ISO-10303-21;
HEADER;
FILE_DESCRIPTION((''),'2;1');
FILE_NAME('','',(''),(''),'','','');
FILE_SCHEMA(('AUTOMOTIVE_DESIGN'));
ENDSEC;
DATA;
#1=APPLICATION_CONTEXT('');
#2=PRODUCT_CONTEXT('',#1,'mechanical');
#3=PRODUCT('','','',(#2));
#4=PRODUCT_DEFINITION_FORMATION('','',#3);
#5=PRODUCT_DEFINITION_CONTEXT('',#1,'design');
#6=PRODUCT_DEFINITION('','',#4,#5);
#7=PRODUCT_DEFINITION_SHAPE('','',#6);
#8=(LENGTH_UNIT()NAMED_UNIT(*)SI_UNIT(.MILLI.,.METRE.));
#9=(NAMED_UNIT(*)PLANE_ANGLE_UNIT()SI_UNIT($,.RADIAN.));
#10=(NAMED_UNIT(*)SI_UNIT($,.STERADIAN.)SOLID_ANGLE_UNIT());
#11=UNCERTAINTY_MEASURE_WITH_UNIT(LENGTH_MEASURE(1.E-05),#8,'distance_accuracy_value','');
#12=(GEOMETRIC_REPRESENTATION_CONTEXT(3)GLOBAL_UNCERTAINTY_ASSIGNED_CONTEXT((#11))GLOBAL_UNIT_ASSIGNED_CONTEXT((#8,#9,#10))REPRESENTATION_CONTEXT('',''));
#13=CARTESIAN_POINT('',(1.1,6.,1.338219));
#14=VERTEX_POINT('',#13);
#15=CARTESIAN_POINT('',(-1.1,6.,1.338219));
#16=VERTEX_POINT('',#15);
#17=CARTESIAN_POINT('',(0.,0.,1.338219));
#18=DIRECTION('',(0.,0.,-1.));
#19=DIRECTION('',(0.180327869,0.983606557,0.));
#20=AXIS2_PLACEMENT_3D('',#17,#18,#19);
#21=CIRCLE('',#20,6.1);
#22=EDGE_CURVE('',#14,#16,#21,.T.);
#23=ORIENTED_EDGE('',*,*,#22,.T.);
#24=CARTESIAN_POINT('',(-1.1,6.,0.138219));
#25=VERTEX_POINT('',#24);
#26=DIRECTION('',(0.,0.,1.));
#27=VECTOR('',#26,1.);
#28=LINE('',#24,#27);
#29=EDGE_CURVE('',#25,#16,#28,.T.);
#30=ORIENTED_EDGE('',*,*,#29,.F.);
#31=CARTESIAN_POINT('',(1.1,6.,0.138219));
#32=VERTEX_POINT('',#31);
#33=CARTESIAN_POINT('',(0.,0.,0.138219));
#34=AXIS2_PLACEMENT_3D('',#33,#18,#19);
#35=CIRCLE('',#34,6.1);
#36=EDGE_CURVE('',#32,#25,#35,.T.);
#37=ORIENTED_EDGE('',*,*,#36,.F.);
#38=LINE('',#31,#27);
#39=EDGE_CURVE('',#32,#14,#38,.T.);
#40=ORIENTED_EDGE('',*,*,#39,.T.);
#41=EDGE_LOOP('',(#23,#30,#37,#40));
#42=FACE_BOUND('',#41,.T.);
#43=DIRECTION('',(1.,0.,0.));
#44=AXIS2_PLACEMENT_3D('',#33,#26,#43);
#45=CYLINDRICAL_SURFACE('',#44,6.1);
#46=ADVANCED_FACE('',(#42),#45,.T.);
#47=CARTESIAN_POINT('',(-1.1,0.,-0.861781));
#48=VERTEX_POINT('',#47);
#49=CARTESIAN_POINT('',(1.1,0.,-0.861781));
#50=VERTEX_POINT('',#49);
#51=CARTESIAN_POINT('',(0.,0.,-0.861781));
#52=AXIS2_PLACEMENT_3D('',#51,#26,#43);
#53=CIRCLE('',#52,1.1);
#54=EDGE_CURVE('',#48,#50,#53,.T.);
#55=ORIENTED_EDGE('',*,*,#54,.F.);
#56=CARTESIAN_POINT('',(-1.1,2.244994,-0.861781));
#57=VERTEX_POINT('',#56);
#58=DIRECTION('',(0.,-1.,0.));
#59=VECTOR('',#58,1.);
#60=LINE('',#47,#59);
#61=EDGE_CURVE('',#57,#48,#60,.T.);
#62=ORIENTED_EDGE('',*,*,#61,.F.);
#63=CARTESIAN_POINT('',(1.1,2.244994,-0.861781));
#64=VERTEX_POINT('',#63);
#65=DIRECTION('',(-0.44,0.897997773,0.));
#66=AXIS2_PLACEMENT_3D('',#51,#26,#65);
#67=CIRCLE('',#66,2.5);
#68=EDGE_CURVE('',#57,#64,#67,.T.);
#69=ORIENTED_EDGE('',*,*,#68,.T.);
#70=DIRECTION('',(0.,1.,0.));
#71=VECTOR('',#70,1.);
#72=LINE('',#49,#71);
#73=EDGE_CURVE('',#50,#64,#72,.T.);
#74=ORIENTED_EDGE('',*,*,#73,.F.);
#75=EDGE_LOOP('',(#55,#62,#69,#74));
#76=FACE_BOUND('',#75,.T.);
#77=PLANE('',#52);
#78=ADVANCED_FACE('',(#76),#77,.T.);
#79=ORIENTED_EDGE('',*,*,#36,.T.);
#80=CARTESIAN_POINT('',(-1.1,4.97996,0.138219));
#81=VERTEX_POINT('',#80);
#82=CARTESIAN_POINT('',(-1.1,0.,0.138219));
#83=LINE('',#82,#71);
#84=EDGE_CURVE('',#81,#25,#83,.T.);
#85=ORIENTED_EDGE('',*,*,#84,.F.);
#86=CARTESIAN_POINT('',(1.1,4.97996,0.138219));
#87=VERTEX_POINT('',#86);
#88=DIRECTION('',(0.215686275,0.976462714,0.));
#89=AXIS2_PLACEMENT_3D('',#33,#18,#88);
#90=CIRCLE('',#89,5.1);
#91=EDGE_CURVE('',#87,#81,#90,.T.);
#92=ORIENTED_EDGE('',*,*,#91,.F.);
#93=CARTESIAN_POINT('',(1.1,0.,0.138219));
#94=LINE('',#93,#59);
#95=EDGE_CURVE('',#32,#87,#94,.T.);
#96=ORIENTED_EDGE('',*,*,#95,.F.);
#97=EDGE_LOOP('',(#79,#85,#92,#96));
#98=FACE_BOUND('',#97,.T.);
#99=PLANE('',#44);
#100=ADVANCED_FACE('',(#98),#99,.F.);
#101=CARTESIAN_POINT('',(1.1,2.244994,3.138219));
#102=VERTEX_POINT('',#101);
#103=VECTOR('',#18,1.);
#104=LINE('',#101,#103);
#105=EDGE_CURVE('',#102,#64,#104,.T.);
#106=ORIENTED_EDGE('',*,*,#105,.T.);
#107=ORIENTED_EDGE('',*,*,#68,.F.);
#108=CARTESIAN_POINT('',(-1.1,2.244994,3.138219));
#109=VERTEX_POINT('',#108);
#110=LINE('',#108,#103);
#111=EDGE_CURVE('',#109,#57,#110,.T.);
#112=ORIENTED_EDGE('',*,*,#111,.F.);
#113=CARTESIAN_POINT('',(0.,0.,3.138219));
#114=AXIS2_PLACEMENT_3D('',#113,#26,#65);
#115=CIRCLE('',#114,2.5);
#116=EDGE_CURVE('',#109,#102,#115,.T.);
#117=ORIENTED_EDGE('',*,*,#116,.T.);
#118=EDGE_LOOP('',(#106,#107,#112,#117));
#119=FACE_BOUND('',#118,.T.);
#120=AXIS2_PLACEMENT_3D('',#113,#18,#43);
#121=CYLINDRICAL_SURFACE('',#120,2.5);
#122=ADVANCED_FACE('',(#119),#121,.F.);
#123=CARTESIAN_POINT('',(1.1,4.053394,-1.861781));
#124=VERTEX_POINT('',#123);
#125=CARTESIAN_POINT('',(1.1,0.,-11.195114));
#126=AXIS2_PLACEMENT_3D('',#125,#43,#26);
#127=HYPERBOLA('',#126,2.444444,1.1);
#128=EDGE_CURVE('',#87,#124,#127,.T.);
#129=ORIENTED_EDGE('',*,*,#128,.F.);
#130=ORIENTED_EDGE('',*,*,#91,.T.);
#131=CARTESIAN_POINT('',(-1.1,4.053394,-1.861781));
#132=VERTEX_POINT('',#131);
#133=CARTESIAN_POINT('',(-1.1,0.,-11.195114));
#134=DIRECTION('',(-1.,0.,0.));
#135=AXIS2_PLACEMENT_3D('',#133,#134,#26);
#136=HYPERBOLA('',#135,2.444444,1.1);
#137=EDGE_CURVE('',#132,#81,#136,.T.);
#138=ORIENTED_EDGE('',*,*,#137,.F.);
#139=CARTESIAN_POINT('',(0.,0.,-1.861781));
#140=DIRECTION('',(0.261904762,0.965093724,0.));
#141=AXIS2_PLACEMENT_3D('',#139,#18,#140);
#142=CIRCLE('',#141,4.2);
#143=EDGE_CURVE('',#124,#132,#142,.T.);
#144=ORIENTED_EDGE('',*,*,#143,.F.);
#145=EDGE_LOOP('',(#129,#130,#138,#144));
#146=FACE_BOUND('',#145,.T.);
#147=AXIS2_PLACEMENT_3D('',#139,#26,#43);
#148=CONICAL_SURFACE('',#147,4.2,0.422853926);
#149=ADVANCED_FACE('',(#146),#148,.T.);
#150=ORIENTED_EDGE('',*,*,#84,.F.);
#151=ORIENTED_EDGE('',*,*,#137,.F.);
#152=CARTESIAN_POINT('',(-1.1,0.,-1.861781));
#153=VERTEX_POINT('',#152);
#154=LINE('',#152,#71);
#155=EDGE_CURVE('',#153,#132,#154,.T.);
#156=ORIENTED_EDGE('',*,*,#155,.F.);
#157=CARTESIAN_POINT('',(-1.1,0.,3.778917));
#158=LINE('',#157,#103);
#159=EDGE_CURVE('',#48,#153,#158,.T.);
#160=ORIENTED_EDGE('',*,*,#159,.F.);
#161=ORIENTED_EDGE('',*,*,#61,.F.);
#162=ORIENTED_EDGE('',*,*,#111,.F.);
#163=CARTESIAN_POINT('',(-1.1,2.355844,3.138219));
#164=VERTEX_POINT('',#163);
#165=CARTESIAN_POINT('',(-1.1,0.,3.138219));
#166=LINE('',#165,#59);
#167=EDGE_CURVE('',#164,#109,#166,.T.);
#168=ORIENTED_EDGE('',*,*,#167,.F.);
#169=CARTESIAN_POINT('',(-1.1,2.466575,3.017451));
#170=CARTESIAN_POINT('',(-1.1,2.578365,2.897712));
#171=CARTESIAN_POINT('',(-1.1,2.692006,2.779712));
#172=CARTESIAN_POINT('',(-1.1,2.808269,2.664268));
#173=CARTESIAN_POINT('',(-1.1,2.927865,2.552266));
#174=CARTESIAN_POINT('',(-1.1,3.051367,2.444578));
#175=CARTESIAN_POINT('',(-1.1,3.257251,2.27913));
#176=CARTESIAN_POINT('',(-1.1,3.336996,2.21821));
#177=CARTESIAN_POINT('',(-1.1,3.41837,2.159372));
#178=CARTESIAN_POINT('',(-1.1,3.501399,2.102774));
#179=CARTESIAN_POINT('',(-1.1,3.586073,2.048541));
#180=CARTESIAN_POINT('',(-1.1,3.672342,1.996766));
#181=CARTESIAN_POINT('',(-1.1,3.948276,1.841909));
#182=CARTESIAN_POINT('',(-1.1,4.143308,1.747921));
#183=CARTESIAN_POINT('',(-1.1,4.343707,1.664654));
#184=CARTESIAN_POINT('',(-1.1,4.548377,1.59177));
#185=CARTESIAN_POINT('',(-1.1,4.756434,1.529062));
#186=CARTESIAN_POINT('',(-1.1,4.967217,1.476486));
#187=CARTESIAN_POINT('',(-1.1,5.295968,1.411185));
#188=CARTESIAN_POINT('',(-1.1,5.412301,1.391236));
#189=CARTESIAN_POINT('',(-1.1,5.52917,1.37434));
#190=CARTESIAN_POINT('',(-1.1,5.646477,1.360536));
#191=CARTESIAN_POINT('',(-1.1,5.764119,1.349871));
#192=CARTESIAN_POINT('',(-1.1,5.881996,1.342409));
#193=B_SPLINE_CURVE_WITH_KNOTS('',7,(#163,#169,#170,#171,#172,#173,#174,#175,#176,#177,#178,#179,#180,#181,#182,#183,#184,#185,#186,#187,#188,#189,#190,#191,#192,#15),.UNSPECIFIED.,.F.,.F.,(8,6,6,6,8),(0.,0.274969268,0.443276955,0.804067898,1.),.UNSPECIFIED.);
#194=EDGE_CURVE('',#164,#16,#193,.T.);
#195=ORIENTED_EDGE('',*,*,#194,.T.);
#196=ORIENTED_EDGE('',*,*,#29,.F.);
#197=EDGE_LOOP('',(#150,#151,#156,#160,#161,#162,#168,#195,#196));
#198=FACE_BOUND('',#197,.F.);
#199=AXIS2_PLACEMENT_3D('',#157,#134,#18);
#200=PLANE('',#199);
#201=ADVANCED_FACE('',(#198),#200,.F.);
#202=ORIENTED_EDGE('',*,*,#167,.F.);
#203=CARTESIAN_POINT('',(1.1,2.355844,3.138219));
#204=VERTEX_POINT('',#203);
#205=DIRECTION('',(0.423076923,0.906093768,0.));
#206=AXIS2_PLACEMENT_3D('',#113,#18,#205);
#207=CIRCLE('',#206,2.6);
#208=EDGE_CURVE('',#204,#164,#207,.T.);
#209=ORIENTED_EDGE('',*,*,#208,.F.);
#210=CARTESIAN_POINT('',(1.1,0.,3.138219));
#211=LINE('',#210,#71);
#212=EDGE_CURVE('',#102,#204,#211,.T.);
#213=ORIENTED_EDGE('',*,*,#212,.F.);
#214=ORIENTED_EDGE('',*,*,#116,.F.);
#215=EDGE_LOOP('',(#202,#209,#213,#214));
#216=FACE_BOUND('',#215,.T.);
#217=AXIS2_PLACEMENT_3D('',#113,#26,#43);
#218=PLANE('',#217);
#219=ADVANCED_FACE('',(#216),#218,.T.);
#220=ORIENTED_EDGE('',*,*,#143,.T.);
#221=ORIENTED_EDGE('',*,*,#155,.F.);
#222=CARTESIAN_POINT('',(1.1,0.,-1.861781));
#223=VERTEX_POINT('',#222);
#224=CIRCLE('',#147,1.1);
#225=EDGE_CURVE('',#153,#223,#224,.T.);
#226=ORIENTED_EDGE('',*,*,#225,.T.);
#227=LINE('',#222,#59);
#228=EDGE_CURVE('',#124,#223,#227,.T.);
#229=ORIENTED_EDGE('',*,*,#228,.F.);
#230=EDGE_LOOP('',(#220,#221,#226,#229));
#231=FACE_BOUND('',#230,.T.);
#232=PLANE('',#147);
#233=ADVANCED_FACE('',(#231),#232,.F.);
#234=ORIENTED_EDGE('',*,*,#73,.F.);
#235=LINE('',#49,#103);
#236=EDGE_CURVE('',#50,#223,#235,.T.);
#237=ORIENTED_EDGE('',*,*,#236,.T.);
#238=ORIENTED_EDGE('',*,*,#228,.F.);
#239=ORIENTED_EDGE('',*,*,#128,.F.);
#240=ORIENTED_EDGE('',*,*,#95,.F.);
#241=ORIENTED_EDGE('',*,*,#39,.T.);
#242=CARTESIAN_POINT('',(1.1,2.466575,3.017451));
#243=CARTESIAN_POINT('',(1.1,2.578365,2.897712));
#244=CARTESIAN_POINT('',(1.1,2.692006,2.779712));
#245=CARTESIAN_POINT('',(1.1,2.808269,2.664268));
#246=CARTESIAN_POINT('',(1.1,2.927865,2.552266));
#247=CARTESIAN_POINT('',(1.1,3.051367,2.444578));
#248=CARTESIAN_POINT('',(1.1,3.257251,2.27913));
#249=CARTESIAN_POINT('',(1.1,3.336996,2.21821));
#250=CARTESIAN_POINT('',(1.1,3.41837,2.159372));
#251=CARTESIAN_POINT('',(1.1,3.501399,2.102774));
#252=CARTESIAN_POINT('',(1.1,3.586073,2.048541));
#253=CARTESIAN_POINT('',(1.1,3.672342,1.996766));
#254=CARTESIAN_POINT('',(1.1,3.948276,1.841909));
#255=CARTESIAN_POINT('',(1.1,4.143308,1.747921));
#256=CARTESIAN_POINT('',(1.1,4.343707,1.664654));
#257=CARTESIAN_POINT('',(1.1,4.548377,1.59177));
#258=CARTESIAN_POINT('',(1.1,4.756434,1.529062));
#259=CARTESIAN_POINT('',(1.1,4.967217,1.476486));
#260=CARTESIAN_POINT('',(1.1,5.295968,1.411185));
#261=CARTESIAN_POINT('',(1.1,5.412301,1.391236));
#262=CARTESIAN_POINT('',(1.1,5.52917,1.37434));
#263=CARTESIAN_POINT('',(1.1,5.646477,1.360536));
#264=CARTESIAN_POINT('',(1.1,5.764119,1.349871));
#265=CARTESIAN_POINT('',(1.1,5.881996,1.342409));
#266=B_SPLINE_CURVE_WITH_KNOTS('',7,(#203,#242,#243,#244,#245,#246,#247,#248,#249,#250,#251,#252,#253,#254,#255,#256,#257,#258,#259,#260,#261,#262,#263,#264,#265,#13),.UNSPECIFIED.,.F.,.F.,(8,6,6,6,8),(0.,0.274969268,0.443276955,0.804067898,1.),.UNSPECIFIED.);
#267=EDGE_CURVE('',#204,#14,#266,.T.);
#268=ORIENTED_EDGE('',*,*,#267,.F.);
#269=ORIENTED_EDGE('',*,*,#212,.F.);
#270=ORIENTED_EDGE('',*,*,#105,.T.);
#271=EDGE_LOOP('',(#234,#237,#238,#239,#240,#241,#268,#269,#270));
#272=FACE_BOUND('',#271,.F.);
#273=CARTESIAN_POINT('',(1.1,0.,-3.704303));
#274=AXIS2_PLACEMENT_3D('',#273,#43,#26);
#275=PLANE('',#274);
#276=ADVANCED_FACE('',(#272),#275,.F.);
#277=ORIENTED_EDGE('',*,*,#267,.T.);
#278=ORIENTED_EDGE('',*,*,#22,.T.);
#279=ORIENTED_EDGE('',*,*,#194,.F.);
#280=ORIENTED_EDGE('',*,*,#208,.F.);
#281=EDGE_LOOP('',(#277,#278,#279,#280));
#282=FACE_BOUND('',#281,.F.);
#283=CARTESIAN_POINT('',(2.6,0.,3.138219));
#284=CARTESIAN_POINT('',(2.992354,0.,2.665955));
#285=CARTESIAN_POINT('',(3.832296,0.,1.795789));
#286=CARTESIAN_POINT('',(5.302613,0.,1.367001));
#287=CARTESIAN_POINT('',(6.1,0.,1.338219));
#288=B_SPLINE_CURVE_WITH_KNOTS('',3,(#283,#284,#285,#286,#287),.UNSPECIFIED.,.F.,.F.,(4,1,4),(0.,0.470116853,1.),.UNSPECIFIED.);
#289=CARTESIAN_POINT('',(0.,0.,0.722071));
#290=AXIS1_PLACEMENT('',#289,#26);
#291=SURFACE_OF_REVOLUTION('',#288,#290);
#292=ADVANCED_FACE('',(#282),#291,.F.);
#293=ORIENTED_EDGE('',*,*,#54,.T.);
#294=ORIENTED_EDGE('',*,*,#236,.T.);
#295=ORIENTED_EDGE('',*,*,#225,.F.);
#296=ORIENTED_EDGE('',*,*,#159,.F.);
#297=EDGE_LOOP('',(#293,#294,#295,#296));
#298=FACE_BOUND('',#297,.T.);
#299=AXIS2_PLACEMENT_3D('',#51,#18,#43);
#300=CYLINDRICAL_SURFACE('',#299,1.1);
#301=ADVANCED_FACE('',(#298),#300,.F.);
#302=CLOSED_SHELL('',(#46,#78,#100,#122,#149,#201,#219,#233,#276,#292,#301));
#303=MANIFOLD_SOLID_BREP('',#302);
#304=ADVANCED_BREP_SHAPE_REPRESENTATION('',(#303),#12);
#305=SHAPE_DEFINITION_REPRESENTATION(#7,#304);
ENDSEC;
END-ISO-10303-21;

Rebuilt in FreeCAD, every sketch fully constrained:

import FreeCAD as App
import Part
import Sketcher


def add_polygon(sketch, points):
    """Adds a closed chain of lines whose ends are joined by coincident constraints."""
    first, n = sketch.GeometryCount, len(points)
    for a, b in zip(points, points[1:] + points[:1]):
        sketch.addGeometry(Part.LineSegment(App.Vector(*a, 0), App.Vector(*b, 0)), False)
    for i in range(n):
        sketch.addConstraint(Sketcher.Constraint("Coincident", first + i, 2, first + (i + 1) % n, 1))

doc = App.newDocument("Part")
body = doc.addObject("PartDesign::Body", "Body")

# Sketch on XZ plane
sketch1 = body.newObject("Sketcher::SketchObject", "Sketch")
sketch1.AttachmentSupport = (doc.getObject("XZ_Plane"), [""])
sketch1.MapMode = "FlatFace"
sketch1.addGeometry(Part.LineSegment(App.Vector(1.1, -0.861781, 0), App.Vector(1.1, -1.861781, 0)), False)
sketch1.addGeometry(Part.LineSegment(App.Vector(1.1, -1.861781, 0), App.Vector(4.2, -1.861781, 0)), False)
sketch1.addGeometry(Part.LineSegment(App.Vector(4.2, -1.861781, 0), App.Vector(5.1, 0.138219, 0)), False)
sketch1.addGeometry(Part.LineSegment(App.Vector(5.1, 0.138219, 0), App.Vector(6.1, 0.138219, 0)), False)
sketch1.addGeometry(Part.LineSegment(App.Vector(6.1, 0.138219, 0), App.Vector(6.1, 1.338219, 0)), False)
sketch1.addGeometry(Part.BSplineCurve([App.Vector(2.6, 3.138219, 0), App.Vector(2.992354, 2.665955, 0), App.Vector(3.832296, 1.795789, 0), App.Vector(5.302613, 1.367001, 0), App.Vector(6.1, 1.338219, 0)], [4, 1, 4], [0, 0.470116853, 1], False, 3, [1, 1, 1, 1, 1], False), False)
sketch1.addGeometry(Part.LineSegment(App.Vector(2.6, 3.138219, 0), App.Vector(2.5, 3.138219, 0)), False)
sketch1.addGeometry(Part.LineSegment(App.Vector(2.5, 3.138219, 0), App.Vector(2.5, -0.861781, 0)), False)
sketch1.addGeometry(Part.LineSegment(App.Vector(2.5, -0.861781, 0), App.Vector(1.1, -0.861781, 0)), False)
sketch1.addConstraint(Sketcher.Constraint("Block", 5))
sketch1.addConstraint(Sketcher.Constraint("Coincident", 0, 2, 1, 1))
sketch1.addConstraint(Sketcher.Constraint("Coincident", 1, 2, 2, 1))
sketch1.addConstraint(Sketcher.Constraint("Coincident", 2, 2, 3, 1))
sketch1.addConstraint(Sketcher.Constraint("Coincident", 3, 2, 4, 1))
sketch1.addConstraint(Sketcher.Constraint("Coincident", 4, 2, 5, 2))
sketch1.addConstraint(Sketcher.Constraint("Coincident", 5, 1, 6, 1))
sketch1.addConstraint(Sketcher.Constraint("Coincident", 6, 2, 7, 1))
sketch1.addConstraint(Sketcher.Constraint("Coincident", 7, 2, 8, 1))
sketch1.addConstraint(Sketcher.Constraint("Coincident", 8, 2, 0, 1))
sketch1.addConstraint(Sketcher.Constraint("Vertical", 0))
sketch1.addConstraint(Sketcher.Constraint("Horizontal", 1))
sketch1.addConstraint(Sketcher.Constraint("Horizontal", 3))
sketch1.addConstraint(Sketcher.Constraint("Vertical", 4))
sketch1.addConstraint(Sketcher.Constraint("Horizontal", 6))
sketch1.addConstraint(Sketcher.Constraint("Vertical", 7))
sketch1.addConstraint(Sketcher.Constraint("Horizontal", 8))
sketch1.addConstraint(Sketcher.Constraint("Equal", 3, 0))
sketch1.addConstraint(Sketcher.Constraint("DistanceX", 3, 1, 3, 2, 1.0))
sketch1.addConstraint(Sketcher.Constraint("DistanceY", 7, 2, 7, 1, 4.0))
sketch1.addConstraint(Sketcher.Constraint("DistanceX", 1, 1, 1, 2, 3.1))
sketch1.addConstraint(Sketcher.Constraint("DistanceX", 6, 2, 6, 1, 0.1))
sketch1.addConstraint(Sketcher.Constraint("DistanceX", 8, 2, 8, 1, 1.4))
sketch1.addConstraint(Sketcher.Constraint("DistanceY", 4, 1, 4, 2, 1.2))
revolution = body.newObject("PartDesign::Revolution", "Revolution")
revolution.Profile = sketch1
revolution.ReferenceAxis = (sketch1, ["V_Axis"])
revolution.Angle = 360

# Sketch on XZ plane
sketch2 = body.newObject("Sketcher::SketchObject", "Sketch001")
sketch2.AttachmentSupport = (doc.getObject("XZ_Plane"), [""])
sketch2.MapMode = "FlatFace"
add_polygon(sketch2, [(1.1, -3.7), (1.1, 3.8), (-1.1, 3.8), (-1.1, -3.7)])  # lines 0-3
sketch2.addConstraint(Sketcher.Constraint("Vertical", 0))
sketch2.addConstraint(Sketcher.Constraint("Horizontal", 1))
sketch2.addConstraint(Sketcher.Constraint("Vertical", 2))
sketch2.addConstraint(Sketcher.Constraint("Horizontal", 3))
sketch2.addConstraint(Sketcher.Constraint("DistanceX", 1, 2, 1, 1, 2.2))
sketch2.addConstraint(Sketcher.Constraint("DistanceX", -1, 1, 0, 2, 1.1))
sketch2.addConstraint(Sketcher.Constraint("DistanceY", 0, 1, 0, 2, 7.48322))
sketch2.addConstraint(Sketcher.Constraint("DistanceY", -1, 1, 0, 2, 3.778917))
pocket1 = body.newObject("PartDesign::Pocket", "Pocket")
pocket1.Profile = sketch2
pocket1.Length = 25

doc.recompute()
